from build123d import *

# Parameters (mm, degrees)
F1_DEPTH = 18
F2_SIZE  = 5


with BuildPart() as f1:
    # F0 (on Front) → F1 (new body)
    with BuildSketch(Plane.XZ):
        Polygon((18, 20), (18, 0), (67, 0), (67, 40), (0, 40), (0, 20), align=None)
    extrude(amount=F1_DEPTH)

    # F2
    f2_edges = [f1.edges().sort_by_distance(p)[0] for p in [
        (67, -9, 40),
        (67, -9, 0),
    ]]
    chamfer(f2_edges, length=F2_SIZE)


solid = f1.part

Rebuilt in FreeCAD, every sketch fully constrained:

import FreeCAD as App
import Part
import Sketcher
Q = App.Units.Quantity


def edges_at(feature, points):
    """Names of the edges that pass closest to the given points."""
    edges = feature.Shape.Edges
    near = lambda p: min(range(len(edges)), key=lambda i: edges[i].distToShape(Part.Vertex(*p))[0])
    return sorted({f"Edge{near(p) + 1}" for p in points})


def add_polygon(sketch, points):
    """Adds a closed chain of lines whose ends are joined by coincident constraints."""
    first, n = sketch.GeometryCount, len(points)
    for a, b in zip(points, points[1:] + points[:1]):
        sketch.addGeometry(Part.LineSegment(App.Vector(*a, 0), App.Vector(*b, 0)), False)
    for i in range(n):
        sketch.addConstraint(Sketcher.Constraint("Coincident", first + i, 2, first + (i + 1) % n, 1))

doc = App.newDocument("Part")
body = doc.addObject("PartDesign::Body", "Body")

sketch1 = body.newObject("Sketcher::SketchObject", "Sketch")
sketch1.AttachmentSupport = (doc.getObject("XZ_Plane"), [""])
sketch1.MapMode = "FlatFace"
add_polygon(sketch1, [(18, 20), (18, 0), (67, 0), (67, 40), (0, 40), (0, 20)])
sketch1.addConstraint([
    Sketcher.Constraint("Vertical", 0),
    Sketcher.Constraint("Horizontal", 1),
    Sketcher.Constraint("Vertical", 2),
    Sketcher.Constraint("Horizontal", 3),
    Sketcher.Constraint("Vertical", 4),
    Sketcher.Constraint("Horizontal", 5),
    Sketcher.Constraint("PointOnObject", 0, 2, -1),
    Sketcher.Constraint("PointOnObject", 3, 2, -2),
    Sketcher.Constraint("Equal", 0, 4),
    Sketcher.Constraint("DistanceX", 1, 1, 1, 2, Q("49 mm")),
    Sketcher.Constraint("DistanceX", 3, 2, 3, 1, Q("67 mm")),
    Sketcher.Constraint("DistanceY", 0, 2, 0, 1, Q("20 mm")),
])
pad1 = body.newObject("PartDesign::Pad", "Pad")
pad1.Profile = sketch1
pad1.Length = 18
doc.recompute()

chamfer = body.newObject("PartDesign::Chamfer", "Chamfer")
chamfer.Base = (pad1, edges_at(pad1, [(67, -9, 40), (67, -9, 0)]))
chamfer.Size = 5

doc.recompute()
